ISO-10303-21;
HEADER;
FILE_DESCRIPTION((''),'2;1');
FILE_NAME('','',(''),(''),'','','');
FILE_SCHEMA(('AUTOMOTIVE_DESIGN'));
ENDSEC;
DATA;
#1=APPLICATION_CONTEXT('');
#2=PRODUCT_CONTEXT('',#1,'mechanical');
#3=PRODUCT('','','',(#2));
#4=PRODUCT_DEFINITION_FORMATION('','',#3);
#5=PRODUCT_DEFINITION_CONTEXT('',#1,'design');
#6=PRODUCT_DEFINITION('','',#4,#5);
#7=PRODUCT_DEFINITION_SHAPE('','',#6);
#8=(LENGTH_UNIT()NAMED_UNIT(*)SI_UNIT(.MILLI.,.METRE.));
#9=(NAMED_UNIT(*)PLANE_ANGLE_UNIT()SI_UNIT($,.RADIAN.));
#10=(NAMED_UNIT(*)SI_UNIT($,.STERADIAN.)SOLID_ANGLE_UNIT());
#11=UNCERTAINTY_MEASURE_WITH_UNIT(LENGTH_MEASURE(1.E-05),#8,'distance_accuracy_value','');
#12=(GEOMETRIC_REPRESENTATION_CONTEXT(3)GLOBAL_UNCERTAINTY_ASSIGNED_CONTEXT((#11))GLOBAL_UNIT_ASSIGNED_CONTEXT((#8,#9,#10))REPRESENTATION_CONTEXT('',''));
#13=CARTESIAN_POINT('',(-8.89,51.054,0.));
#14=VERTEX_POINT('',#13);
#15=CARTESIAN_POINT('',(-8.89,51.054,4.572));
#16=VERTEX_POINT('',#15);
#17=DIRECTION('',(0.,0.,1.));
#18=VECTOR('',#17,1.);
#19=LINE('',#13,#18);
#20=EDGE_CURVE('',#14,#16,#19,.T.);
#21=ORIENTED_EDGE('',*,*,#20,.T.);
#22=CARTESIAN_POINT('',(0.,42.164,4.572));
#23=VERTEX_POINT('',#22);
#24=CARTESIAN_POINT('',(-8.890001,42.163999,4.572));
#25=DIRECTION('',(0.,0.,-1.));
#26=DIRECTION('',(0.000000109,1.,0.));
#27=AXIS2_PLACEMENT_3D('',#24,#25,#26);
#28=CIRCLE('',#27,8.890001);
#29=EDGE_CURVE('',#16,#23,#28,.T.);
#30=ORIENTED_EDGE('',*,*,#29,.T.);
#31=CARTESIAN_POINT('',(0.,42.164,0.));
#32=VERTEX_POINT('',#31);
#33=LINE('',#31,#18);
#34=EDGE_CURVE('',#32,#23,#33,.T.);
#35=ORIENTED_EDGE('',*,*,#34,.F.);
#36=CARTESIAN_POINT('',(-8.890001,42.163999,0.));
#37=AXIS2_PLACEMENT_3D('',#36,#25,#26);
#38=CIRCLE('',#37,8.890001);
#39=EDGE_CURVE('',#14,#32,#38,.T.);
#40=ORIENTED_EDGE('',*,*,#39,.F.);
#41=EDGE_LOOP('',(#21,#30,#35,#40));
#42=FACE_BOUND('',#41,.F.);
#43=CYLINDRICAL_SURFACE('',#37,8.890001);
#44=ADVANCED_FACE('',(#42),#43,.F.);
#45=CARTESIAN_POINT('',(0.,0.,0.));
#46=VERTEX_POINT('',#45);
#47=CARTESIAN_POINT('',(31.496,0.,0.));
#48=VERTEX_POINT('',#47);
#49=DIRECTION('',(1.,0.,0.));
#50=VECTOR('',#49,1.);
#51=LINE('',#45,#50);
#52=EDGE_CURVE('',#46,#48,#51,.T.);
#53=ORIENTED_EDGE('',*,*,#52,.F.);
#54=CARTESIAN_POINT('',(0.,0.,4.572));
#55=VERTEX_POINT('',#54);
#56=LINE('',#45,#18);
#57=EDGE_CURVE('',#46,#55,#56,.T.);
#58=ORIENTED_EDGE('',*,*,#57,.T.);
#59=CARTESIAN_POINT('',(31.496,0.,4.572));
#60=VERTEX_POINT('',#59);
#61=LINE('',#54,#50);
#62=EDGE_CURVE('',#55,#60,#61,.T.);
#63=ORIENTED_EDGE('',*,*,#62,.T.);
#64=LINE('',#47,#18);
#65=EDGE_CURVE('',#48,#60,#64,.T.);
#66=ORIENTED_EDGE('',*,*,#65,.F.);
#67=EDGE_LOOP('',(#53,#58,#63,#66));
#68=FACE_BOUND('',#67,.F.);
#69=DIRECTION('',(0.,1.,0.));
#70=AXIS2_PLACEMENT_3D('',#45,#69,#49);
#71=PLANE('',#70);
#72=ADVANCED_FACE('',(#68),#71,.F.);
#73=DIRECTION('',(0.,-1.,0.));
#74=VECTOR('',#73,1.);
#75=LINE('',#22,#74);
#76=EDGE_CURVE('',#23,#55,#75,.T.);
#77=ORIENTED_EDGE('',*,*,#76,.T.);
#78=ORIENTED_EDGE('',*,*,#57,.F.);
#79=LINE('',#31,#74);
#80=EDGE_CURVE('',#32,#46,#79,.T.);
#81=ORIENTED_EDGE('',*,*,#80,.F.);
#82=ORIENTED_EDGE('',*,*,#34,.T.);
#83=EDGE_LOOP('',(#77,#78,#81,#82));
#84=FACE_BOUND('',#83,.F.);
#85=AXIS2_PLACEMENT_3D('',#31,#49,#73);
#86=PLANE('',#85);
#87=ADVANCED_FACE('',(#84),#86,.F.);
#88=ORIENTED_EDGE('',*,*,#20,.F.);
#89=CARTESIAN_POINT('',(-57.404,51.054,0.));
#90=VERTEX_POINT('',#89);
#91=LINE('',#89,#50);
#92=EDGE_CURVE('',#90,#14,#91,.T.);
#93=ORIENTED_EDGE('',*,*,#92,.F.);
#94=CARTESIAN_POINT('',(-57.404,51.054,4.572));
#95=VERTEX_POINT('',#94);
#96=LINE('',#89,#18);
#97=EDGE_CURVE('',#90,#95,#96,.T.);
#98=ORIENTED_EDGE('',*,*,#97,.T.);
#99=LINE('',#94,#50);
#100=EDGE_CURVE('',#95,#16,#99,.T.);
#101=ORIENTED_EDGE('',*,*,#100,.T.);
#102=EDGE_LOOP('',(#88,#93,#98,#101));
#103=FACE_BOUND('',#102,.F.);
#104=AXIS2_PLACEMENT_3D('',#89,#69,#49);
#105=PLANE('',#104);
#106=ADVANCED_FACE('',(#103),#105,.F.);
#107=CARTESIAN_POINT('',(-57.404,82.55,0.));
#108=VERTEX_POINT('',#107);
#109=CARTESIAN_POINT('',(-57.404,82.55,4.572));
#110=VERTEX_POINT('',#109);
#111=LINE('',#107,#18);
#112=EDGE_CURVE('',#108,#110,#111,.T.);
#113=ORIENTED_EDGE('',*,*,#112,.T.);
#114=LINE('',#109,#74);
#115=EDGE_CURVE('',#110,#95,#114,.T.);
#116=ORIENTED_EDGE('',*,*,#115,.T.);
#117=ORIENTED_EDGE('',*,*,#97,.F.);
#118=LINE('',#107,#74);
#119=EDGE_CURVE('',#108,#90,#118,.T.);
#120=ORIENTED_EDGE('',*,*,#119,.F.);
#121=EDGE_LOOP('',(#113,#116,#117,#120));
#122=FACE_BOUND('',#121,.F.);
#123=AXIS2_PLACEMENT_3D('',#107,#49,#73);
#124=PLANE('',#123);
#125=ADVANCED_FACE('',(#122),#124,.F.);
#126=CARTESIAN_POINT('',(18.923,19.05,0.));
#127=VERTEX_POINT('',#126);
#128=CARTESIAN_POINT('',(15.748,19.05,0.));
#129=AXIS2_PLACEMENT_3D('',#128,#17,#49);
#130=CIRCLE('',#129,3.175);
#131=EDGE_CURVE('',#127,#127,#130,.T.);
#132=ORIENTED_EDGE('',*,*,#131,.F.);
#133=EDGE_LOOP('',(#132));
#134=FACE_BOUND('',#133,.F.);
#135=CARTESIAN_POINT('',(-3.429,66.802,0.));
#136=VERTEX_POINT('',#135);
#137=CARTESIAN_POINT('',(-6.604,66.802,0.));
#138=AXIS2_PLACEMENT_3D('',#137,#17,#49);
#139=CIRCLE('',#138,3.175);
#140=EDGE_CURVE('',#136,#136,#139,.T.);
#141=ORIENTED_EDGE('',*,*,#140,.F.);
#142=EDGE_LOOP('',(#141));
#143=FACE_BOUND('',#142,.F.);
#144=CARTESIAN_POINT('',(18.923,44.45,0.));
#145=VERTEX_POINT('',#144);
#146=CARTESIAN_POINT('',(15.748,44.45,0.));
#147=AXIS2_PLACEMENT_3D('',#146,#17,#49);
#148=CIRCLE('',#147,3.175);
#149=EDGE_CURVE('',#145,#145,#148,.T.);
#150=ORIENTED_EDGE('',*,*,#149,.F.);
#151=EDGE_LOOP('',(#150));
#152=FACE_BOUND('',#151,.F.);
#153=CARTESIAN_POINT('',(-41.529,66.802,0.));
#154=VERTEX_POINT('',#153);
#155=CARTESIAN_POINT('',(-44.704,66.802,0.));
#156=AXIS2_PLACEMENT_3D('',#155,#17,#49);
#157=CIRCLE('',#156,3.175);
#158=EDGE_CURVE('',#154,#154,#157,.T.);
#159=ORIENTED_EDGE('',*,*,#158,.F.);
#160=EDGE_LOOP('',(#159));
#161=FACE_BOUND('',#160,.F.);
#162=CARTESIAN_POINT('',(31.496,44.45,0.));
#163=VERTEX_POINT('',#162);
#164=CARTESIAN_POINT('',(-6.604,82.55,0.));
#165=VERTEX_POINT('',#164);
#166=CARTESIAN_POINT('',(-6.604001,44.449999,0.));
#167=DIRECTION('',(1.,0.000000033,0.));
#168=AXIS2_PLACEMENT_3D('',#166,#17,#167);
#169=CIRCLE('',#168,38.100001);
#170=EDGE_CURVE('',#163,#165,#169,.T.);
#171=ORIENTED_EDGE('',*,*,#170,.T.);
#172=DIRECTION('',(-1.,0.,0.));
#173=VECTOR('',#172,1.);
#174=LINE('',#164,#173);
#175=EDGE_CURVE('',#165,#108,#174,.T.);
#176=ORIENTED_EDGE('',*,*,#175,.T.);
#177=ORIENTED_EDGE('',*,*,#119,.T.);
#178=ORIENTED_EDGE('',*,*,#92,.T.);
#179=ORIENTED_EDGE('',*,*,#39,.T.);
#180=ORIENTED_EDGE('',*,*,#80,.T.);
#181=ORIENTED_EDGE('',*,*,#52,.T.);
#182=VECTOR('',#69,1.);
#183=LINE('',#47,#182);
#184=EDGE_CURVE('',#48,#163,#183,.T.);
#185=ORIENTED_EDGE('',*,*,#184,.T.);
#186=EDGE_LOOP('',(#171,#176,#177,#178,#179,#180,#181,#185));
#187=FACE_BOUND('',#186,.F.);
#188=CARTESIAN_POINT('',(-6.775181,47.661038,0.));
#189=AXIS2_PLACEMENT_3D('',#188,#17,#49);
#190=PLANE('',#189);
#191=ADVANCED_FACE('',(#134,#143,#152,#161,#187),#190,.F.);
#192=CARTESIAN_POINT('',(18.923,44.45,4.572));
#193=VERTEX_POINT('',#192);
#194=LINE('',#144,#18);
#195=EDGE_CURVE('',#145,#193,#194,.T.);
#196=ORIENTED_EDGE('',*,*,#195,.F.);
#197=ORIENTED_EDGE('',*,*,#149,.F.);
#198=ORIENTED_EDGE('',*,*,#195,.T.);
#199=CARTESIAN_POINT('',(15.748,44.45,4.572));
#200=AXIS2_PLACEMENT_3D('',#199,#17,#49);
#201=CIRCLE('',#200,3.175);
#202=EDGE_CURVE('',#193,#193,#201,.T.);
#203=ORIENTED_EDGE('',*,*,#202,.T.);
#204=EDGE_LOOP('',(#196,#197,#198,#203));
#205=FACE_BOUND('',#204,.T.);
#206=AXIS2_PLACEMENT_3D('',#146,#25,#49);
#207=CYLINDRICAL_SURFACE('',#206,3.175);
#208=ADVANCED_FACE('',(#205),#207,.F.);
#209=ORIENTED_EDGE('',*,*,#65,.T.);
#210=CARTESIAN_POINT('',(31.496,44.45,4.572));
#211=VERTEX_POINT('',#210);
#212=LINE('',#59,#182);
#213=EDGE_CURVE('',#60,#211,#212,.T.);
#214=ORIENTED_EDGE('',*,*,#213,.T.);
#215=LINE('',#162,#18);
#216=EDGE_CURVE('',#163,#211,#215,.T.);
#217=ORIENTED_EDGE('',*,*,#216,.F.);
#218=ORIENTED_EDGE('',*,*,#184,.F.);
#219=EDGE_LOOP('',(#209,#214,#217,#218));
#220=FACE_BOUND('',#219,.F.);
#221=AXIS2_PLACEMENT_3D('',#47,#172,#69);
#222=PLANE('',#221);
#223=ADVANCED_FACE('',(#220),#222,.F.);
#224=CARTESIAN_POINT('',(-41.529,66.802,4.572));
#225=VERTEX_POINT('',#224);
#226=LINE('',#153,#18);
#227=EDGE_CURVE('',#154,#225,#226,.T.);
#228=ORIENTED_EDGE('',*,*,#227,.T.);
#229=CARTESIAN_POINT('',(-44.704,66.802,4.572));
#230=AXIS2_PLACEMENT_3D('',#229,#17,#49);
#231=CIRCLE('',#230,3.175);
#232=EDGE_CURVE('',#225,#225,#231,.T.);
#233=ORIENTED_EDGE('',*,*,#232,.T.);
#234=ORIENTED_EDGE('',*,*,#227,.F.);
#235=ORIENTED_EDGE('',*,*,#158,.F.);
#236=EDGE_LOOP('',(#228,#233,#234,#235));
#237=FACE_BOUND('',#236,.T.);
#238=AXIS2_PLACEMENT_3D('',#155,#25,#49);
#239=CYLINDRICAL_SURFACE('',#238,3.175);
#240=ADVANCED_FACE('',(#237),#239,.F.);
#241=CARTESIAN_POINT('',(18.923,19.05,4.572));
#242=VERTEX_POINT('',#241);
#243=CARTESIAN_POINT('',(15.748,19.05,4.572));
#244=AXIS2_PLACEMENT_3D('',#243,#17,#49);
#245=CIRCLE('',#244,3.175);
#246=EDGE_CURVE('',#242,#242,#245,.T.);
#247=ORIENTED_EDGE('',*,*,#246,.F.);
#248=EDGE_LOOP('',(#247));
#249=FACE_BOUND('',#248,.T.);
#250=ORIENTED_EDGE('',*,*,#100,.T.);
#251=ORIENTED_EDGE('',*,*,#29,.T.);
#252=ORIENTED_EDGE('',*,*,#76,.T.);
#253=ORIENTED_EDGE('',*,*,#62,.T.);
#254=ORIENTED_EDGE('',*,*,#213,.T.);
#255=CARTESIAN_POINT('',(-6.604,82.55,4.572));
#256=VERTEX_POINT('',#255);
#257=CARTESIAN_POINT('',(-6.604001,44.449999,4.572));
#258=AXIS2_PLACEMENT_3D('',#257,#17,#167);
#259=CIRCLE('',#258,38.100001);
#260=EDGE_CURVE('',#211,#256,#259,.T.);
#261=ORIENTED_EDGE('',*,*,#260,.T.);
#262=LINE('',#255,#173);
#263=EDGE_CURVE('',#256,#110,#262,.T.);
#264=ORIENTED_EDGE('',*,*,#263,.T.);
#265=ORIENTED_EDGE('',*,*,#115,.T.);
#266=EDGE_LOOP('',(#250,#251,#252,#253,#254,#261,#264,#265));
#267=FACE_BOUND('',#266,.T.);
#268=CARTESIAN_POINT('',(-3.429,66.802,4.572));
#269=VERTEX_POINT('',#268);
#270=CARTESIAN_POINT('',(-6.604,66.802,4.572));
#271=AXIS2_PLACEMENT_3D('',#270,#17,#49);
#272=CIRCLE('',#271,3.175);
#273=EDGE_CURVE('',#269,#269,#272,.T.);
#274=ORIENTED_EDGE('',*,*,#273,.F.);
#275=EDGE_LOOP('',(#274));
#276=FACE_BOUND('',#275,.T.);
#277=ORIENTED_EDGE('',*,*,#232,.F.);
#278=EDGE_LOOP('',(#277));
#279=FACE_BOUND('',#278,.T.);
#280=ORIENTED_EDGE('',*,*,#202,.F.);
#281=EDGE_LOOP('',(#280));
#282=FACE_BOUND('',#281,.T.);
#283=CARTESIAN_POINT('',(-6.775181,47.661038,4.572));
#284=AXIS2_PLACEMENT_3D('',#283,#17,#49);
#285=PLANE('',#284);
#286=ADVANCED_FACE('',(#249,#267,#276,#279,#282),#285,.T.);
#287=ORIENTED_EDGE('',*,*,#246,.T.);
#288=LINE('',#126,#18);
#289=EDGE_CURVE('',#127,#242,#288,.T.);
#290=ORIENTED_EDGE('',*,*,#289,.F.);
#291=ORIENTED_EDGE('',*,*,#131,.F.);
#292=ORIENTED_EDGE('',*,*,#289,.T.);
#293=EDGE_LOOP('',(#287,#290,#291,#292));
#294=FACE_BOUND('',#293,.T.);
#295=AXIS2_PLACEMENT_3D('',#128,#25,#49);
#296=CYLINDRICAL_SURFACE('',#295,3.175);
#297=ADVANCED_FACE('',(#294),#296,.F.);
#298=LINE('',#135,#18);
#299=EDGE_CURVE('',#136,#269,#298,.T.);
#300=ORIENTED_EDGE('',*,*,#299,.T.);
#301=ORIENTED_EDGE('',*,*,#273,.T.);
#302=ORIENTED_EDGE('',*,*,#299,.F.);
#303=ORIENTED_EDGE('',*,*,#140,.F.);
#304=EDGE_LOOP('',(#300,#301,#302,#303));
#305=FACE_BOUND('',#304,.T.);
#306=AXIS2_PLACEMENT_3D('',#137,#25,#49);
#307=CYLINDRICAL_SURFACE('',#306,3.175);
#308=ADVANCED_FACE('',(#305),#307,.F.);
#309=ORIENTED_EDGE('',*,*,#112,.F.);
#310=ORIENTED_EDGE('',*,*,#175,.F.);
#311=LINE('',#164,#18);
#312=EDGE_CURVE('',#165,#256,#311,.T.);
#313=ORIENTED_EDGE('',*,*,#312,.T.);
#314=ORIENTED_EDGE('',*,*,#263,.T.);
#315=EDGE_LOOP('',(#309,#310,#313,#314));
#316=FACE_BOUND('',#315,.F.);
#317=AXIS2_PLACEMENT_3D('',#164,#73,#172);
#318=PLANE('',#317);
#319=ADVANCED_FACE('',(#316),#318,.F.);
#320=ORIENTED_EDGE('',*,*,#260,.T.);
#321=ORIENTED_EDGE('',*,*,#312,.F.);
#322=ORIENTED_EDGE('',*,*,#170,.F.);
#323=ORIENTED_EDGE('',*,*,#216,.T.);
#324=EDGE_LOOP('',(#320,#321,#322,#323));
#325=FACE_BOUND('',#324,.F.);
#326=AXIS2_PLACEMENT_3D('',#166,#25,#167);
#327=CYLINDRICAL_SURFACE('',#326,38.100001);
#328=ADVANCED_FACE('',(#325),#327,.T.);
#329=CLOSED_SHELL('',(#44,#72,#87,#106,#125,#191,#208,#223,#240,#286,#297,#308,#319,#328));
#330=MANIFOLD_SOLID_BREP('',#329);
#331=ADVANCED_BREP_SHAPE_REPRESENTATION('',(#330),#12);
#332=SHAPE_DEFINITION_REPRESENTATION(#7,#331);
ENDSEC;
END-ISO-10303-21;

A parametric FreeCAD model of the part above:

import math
import FreeCAD as App
import Part
import Sketcher

V = App.Vector
Q = App.Units.Quantity

doc = App.newDocument("Part")
params = doc.addObject("Spreadsheet::Sheet", "Params")
for row, (alias, value) in enumerate([
    ("sketch1_radius", "1.5 in"),
    ("sketch1_diameter", "0.25 in"),
    ("sketch1_width", "2 in"),
    ("sketch1_radius2", "0.35 in"),
    ("sketch1_width2", "1.91 in"),
    ("pad1_length", "0.18 in"),
], start=1):
    params.set(f"A{row}", alias)
    params.set(f"B{row}", "=" + value)
    params.setAlias(f"B{row}", alias)

body = doc.addObject("PartDesign::Body", "Body")

# Sketch on XY plane
sketch1 = body.newObject("Sketcher::SketchObject", "Sketch")
sketch1.AttachmentSupport = (doc.getObject("XY_Plane"), [""])
sketch1.MapMode = "FlatFace"
sketch1.addGeometry(Part.LineSegment(V(-6.6, 82.5, 0), V(-57.4, 82.5, 0)), False)
sketch1.addGeometry(Part.LineSegment(V(-57.4, 82.5, 0), V(-57.4, 51.1, 0)), False)
sketch1.addGeometry(Part.LineSegment(V(-57.4, 51.1, 0), V(-8.9, 51.1, 0)), False)
sketch1.addGeometry(Part.ArcOfCircle(Part.Circle(V(-8.9, 42.2, 0), V(0, 0, 1), 8.9), math.radians(0), math.radians(90)), False)
sketch1.addGeometry(Part.LineSegment(V(0, 42.2, 0), V(0, 0, 0)), False)
sketch1.addGeometry(Part.LineSegment(V(0, 0, 0), V(31.5, 0, 0)), False)
sketch1.addGeometry(Part.LineSegment(V(31.5, 0, 0), V(31.5, 44.5, 0)), False)
sketch1.addGeometry(Part.ArcOfCircle(Part.Circle(V(-6.6, 44.4, 0), V(0, 0, 1), 38.1), math.radians(0), math.radians(90)), False)
sketch1.addGeometry(Part.Circle(V(15.7, 19.1, 0), V(0, 0, 1), 3.2), False)
sketch1.addGeometry(Part.Circle(V(-44.7, 66.8, 0), V(0, 0, 1), 3.2), False)
sketch1.addGeometry(Part.Circle(V(15.7, 44.5, 0), V(0, 0, 1), 3.2), False)
sketch1.addGeometry(Part.Circle(V(-6.6, 66.8, 0), V(0, 0, 1), 3.2), False)
sketch1.addConstraint(Sketcher.Constraint("Coincident", 0, 2, 1, 1))
sketch1.addConstraint(Sketcher.Constraint("Coincident", 1, 2, 2, 1))
sketch1.addConstraint(Sketcher.Constraint("Tangent", 2, 2, 3, 2))
sketch1.addConstraint(Sketcher.Constraint("Tangent", 3, 1, 4, 1))
sketch1.addConstraint(Sketcher.Constraint("Coincident", 4, 2, 5, 1))
sketch1.addConstraint(Sketcher.Constraint("Coincident", 5, 2, 6, 1))
sketch1.addConstraint(Sketcher.Constraint("Tangent", 6, 2, 7, 1))
sketch1.addConstraint(Sketcher.Constraint("Tangent", 7, 2, 0, 1))
sketch1.addConstraint(Sketcher.Constraint("Horizontal", 0))
sketch1.addConstraint(Sketcher.Constraint("Vertical", 1))
sketch1.addConstraint(Sketcher.Constraint("Horizontal", 2))
sketch1.addConstraint(Sketcher.Constraint("Vertical", 4))
sketch1.addConstraint(Sketcher.Constraint("Horizontal", 5))
sketch1.addConstraint(Sketcher.Constraint("Vertical", 6))
sketch1.addConstraint(Sketcher.Constraint("Coincident", 4, 2, -1, 1))
sketch1.addConstraint(Sketcher.Constraint("Equal", 8, 9))
sketch1.addConstraint(Sketcher.Constraint("Equal", 9, 10))
sketch1.addConstraint(Sketcher.Constraint("Equal", 10, 11))
sketch1.addConstraint(Sketcher.Constraint("Horizontal", 7, 3, 10, 3))
sketch1.addConstraint(Sketcher.Constraint("Horizontal", 9, 3, 11, 3))
sketch1.addConstraint(Sketcher.Constraint("Vertical", 8, 3, 10, 3))
sketch1.addConstraint(Sketcher.Constraint("Vertical", 7, 3, 11, 3))
sketch1.addConstraint(Sketcher.Constraint("Equal", 5, 1))
sketch1.addConstraint(Sketcher.Constraint("Radius", 7, Q("1.5 in")))
sketch1.addConstraint(Sketcher.Constraint("Diameter", 8, Q("0.25 in")))
sketch1.addConstraint(Sketcher.Constraint("DistanceX", 0, 2, 0, 1, Q("2 in")))
sketch1.addConstraint(Sketcher.Constraint("Radius", 3, Q("0.35 in")))
sketch1.addConstraint(Sketcher.Constraint("DistanceY", 8, 3, 7, 3, Q("1 in")))
sketch1.addConstraint(Sketcher.Constraint("DistanceX", 2, 1, 2, 2, Q("1.91 in")))
sketch1.addConstraint(Sketcher.Constraint("DistanceY", 4, 2, 4, 1, Q("1.66 in")))
sketch1.addConstraint(Sketcher.Constraint("DistanceX", 9, 3, 7, 3, Q("1.5 in")))
sketch1.addConstraint(Sketcher.Constraint("DistanceX", -1, 1, 8, 3, Q("0.62 in")))
sketch1.addConstraint(Sketcher.Constraint("DistanceY", -1, 1, 9, 3, Q("2.63 in")))
sketch1.setExpression("Constraints[23]", "Params.sketch1_radius")
sketch1.setExpression("Constraints[24]", "Params.sketch1_diameter")
sketch1.setExpression("Constraints[25]", "Params.sketch1_width")
sketch1.setExpression("Constraints[26]", "Params.sketch1_radius2")
sketch1.setExpression("Constraints[28]", "Params.sketch1_width2")
pad1 = body.newObject("PartDesign::Pad", "Pad")
pad1.Profile = sketch1
pad1.setExpression("Length", "Params.pad1_length")

doc.recompute()
